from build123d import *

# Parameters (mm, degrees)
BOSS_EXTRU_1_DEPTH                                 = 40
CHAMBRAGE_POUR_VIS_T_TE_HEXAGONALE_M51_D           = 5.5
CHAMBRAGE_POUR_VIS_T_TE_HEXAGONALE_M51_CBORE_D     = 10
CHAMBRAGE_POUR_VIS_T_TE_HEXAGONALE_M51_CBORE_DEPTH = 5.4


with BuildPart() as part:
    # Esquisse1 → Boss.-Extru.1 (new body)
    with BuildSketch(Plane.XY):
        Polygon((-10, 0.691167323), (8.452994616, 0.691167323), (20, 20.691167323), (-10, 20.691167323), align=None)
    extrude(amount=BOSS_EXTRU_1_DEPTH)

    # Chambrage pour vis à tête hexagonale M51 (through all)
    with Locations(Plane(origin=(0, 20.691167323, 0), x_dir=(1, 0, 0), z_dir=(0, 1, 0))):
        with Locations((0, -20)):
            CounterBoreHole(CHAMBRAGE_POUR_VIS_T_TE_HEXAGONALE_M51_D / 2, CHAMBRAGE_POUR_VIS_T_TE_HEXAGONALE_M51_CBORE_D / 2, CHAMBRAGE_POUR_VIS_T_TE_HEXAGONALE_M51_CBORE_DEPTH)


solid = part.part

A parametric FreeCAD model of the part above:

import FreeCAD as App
import Part
import Sketcher
from FreeCAD import Vector
Q = App.Units.Quantity


def add_polygon(sketch, points):
    """Adds a closed chain of lines whose ends are joined by coincident constraints."""
    first, n = sketch.GeometryCount, len(points)
    for a, b in zip(points, points[1:] + points[:1]):
        sketch.addGeometry(Part.LineSegment(App.Vector(*a, 0), App.Vector(*b, 0)), False)
    for i in range(n):
        sketch.addConstraint(Sketcher.Constraint("Coincident", first + i, 2, first + (i + 1) % n, 1))

doc = App.newDocument("Part")
body = doc.addObject("PartDesign::Body", "Body")

# Sketch on XY plane
sketch1 = doc.addObject("Sketcher::SketchObject", "Sketch")
body.addObject(sketch1)
sketch1.AttachmentSupport = (doc.XY_Plane, [""])
sketch1.MapMode = "FlatFace"
add_polygon(sketch1, [(-10, 1), (8, 1), (20, 21), (-10, 21)])  # lines 0-3
sketch1.addConstraint(Sketcher.Constraint("Horizontal", 0))
sketch1.addConstraint(Sketcher.Constraint("Horizontal", 2))
sketch1.addConstraint(Sketcher.Constraint("Vertical", 3))
sketch1.addConstraint(Sketcher.Constraint("DistanceX", 2, 2, 2, 1, Q("30 mm")))
sketch1.addConstraint(Sketcher.Constraint("DistanceY", 3, 2, 3, 1, Q("20 mm")))
sketch1.addConstraint(Sketcher.Constraint("Angle", 1, Q("60 deg")))
sketch1.addConstraint(Sketcher.Constraint("DistanceX", -1, 1, 1, 2, Q("20 mm")))
sketch1.addConstraint(Sketcher.Constraint("DistanceY", -1, 1, 0, 2, Q("0.691167 mm")))
pad1 = doc.addObject("PartDesign::Pad", "Pad")
body.addObject(pad1)
pad1.Profile = sketch1
pad1.Length = 40

# Sketch on XZ plane
sketch2 = doc.addObject("Sketcher::SketchObject", "Sketch001")
body.addObject(sketch2)
sketch2.AttachmentSupport = (doc.XZ_Plane, [""])
sketch2.MapMode = "FlatFace"
sketch2.AttachmentOffset = App.Placement(Vector(0, 0, -20.691167), App.Rotation())
sketch2.addGeometry(Part.Circle(Vector(0, 20, 0), Vector(0, 0, 1), 2.8), False)
sketch2.addConstraint(Sketcher.Constraint("PointOnObject", 0, 3, -2))
sketch2.addConstraint(Sketcher.Constraint("Diameter", 0, Q("5.5 mm")))
sketch2.addConstraint(Sketcher.Constraint("DistanceY", -1, 1, 0, 3, Q("20 mm")))
doc.recompute()
hole = doc.addObject("PartDesign::Hole", "Hole")
body.addObject(hole)
hole.Profile = sketch2
hole.ThreadType = "None"
hole.Diameter = 5.5
hole.DepthType = "ThroughAll"
hole.HoleCutType = "Counterbore"
hole.HoleCutDiameter = 10
hole.HoleCutDepth = 5.4
hole.Reversed = True

doc.recompute()
